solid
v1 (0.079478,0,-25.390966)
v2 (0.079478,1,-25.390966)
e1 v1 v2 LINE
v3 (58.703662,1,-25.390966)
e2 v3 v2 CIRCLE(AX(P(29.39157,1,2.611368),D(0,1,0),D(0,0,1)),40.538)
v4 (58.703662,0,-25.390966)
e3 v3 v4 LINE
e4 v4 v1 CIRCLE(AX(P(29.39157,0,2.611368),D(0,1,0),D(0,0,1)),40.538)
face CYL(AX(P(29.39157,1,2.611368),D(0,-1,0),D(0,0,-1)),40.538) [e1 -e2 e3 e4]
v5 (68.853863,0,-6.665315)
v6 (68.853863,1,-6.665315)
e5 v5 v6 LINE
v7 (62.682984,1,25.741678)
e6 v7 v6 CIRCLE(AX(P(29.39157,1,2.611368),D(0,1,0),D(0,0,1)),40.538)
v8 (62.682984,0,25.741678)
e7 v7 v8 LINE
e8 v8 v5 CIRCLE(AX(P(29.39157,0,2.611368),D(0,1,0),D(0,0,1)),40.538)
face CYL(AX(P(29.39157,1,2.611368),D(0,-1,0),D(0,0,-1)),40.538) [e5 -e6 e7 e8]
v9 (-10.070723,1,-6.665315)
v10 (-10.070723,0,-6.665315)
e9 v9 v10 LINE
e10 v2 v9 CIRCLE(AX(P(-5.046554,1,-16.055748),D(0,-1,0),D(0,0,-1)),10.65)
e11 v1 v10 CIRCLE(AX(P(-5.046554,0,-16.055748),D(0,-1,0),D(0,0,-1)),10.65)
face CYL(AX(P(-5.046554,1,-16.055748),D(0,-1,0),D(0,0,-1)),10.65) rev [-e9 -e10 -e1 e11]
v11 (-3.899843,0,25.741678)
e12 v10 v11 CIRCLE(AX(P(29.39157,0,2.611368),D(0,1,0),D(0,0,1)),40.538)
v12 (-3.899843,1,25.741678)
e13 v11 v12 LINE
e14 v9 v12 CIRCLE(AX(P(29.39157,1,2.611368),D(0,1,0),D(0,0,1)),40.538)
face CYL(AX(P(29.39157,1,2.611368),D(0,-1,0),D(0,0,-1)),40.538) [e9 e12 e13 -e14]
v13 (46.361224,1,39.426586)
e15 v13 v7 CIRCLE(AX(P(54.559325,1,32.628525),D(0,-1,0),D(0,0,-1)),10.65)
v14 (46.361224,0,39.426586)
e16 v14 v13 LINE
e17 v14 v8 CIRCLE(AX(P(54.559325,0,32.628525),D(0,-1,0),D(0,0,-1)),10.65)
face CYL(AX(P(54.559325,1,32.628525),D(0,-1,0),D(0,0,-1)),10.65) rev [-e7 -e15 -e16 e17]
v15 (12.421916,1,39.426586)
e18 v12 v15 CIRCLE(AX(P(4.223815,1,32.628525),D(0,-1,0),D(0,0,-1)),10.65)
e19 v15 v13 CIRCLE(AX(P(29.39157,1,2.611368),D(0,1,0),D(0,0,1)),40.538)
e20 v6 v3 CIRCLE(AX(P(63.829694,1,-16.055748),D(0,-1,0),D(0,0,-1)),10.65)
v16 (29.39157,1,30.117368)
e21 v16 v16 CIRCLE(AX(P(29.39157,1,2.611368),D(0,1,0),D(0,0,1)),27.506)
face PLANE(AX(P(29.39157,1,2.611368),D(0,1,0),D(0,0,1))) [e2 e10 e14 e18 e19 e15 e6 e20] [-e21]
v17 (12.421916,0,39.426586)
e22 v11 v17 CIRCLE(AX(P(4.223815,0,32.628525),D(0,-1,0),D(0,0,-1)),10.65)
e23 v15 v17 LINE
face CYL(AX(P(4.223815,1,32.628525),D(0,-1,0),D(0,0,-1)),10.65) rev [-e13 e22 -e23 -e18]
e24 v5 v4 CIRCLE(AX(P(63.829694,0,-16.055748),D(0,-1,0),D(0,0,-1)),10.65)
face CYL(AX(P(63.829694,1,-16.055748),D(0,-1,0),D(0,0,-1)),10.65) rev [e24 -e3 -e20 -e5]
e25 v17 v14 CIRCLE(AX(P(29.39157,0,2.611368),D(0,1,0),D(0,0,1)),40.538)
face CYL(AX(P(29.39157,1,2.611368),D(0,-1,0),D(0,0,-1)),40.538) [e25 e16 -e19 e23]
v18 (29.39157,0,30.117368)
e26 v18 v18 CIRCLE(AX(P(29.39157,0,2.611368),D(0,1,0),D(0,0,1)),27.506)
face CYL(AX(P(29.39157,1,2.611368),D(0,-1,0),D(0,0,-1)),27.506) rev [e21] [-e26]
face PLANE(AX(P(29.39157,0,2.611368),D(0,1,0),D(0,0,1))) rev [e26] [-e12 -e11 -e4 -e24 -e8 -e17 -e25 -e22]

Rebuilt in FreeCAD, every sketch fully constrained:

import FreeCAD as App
import Part
import Sketcher
from FreeCAD import Vector

doc = App.newDocument("Part")
params = doc.addObject("Spreadsheet::Sheet", "Params")
for row, (alias, value) in enumerate([
    ("pad1_length", "1 mm"),
    ("sketch2_diameter", "21.3 mm"),
    ("pocket1_length", "1 mm"),
], start=1):
    params.set(f"A{row}", alias)
    params.set(f"B{row}", "=" + value)
    params.setAlias(f"B{row}", alias)

body = doc.addObject("PartDesign::Body", "Body")

sketch1 = body.newObject("Sketcher::SketchObject", "Sketch")
sketch1.AttachmentSupport = (doc.getObject("XZ_Plane"), [""])
sketch1.MapMode = "FlatFace"
sketch1.addGeometry([
    Part.Circle(Vector(29, 3, 0), Vector(0, 0, 1), 41),
    Part.Circle(Vector(29, 3, 0), Vector(0, 0, 1), 28),
], False)
sketch1.addConstraint([
    Sketcher.Constraint("Coincident", 1, 3, 0, 3),
    Sketcher.Constraint("Diameter", 0, 81.076),
    Sketcher.Constraint("Diameter", 1, 55.012),
    Sketcher.Constraint("DistanceX", -1, 1, 0, 3, 29.39157),
    Sketcher.Constraint("DistanceY", -1, 1, 0, 3, 2.611368),
])
pad1 = body.newObject("PartDesign::Pad", "Pad")
pad1.Profile = sketch1
pad1.setExpression("Length", "Params.pad1_length")
pad1.Reversed = True

sketch2 = body.newObject("Sketcher::SketchObject", "Sketch001")
sketch2.AttachmentSupport = (doc.getObject("XZ_Plane"), [""])
sketch2.MapMode = "FlatFace"
sketch2.addGeometry([
    Part.Circle(Vector(4, 33, 0), Vector(0, 0, 1), 11),
    Part.Circle(Vector(55, 33, 0), Vector(0, 0, 1), 11),
    Part.Circle(Vector(64, -16, 0), Vector(0, 0, 1), 11),
    Part.Circle(Vector(-5, -16, 0), Vector(0, 0, 1), 11),
], False)
sketch2.addConstraint([
    Sketcher.Constraint("Equal", 0, 1),
    Sketcher.Constraint("Equal", 1, 2),
    Sketcher.Constraint("Equal", 2, 3),
    Sketcher.Constraint("Horizontal", 0, 3, 1, 3),
    Sketcher.Constraint("Horizontal", 2, 3, 3, 3),
    Sketcher.Constraint("Diameter", 0, 21.3),
    Sketcher.Constraint("DistanceX", 0, 3, 1, 3, 50.33551),
    Sketcher.Constraint("DistanceX", 1, 3, 2, 3, 9.270369),
    Sketcher.Constraint("DistanceX", 3, 3, 0, 3, 9.270369),
    Sketcher.Constraint("DistanceX", -1, 1, 0, 3, 4.223815),
    Sketcher.Constraint("DistanceY", -1, 1, 0, 3, 32.628525),
    Sketcher.Constraint("DistanceY", 2, 3, -1, 1, 16.055748),
])
sketch2.setExpression("Constraints[5]", "Params.sketch2_diameter")
pocket1 = body.newObject("PartDesign::Pocket", "Pocket")
pocket1.Profile = sketch2
pocket1.setExpression("Length", "Params.pocket1_length")

doc.recompute()
